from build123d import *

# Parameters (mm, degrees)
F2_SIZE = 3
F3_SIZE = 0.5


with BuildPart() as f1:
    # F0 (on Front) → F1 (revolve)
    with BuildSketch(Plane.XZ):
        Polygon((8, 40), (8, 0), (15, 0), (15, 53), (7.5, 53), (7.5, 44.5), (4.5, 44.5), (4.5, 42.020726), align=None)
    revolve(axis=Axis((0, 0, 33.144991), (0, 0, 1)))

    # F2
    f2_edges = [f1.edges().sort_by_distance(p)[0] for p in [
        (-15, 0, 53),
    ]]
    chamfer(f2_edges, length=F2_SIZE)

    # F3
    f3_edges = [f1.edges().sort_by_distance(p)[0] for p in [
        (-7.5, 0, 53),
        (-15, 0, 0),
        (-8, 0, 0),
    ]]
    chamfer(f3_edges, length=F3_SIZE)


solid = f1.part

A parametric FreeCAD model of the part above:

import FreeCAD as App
import Part
import Sketcher

V = App.Vector
Q = App.Units.Quantity


def edges_at(feature, points):
    """Names of the edges that pass closest to the given points."""
    edges = feature.Shape.Edges
    near = lambda p: min(range(len(edges)), key=lambda i: edges[i].distToShape(Part.Vertex(*p))[0])
    return sorted({f"Edge{near(p) + 1}" for p in points})


def add_polygon(sketch, points):
    """Adds a closed chain of lines whose ends are joined by coincident constraints."""
    first, n = sketch.GeometryCount, len(points)
    for a, b in zip(points, points[1:] + points[:1]):
        sketch.addGeometry(Part.LineSegment(App.Vector(*a, 0), App.Vector(*b, 0)), False)
    for i in range(n):
        sketch.addConstraint(Sketcher.Constraint("Coincident", first + i, 2, first + (i + 1) % n, 1))

doc = App.newDocument("Part")
body = doc.addObject("PartDesign::Body", "Body")

# Sketch on XZ plane
sketch1 = body.newObject("Sketcher::SketchObject", "Sketch")
sketch1.AttachmentSupport = (doc.getObject("XZ_Plane"), [""])
sketch1.MapMode = "FlatFace"
add_polygon(sketch1, [(8, 40), (8, 0), (15, 0), (15, 53), (7.5, 53), (7.5, 44.5), (4.5, 44.5), (4.5, 42.020726)])  # lines 0-7
sketch1.addConstraint([
    Sketcher.Constraint("Vertical", 0),
    Sketcher.Constraint("Horizontal", 1),
    Sketcher.Constraint("Vertical", 2),
    Sketcher.Constraint("Horizontal", 3),
    Sketcher.Constraint("Vertical", 4),
    Sketcher.Constraint("Horizontal", 5),
    Sketcher.Constraint("Vertical", 6),
    Sketcher.Constraint("PointOnObject", 0, 2, -1),
    Sketcher.Constraint("DistanceX", 1, 1, 1, 2, 7.0),
    Sketcher.Constraint("DistanceX", 5, 2, 5, 1, 3.0),
    Sketcher.Constraint("DistanceY", 0, 2, 0, 1, 40.0),
    Sketcher.Constraint("DistanceY", 2, 1, 2, 2, 53.0),
    Sketcher.Constraint("Angle", 7, Q("-30.000001 deg")),
    Sketcher.Constraint("DistanceX", 3, 2, 3, 1, 7.5),
    Sketcher.Constraint("DistanceY", 4, 2, 4, 1, 8.5),
    Sketcher.Constraint("DistanceX", -1, 1, 0, 2, 8.0),
])
revolution = body.newObject("PartDesign::Revolution", "Revolution")
revolution.Profile = sketch1
revolution.ReferenceAxis = (sketch1, ["V_Axis"])
revolution.Angle = 360
doc.recompute()

chamfer = body.newObject("PartDesign::Chamfer", "Chamfer")
chamfer.Base = (revolution, edges_at(revolution, [(-15, 0, 53)]))
chamfer.Size = 3
doc.recompute()

chamfer2 = body.newObject("PartDesign::Chamfer", "Chamfer001")
chamfer2.Base = (chamfer, edges_at(chamfer, [(-7.5, 0, 53), (-15, 0, 0), (-8, 0, 0)]))
chamfer2.Size = 0.5

doc.recompute()
